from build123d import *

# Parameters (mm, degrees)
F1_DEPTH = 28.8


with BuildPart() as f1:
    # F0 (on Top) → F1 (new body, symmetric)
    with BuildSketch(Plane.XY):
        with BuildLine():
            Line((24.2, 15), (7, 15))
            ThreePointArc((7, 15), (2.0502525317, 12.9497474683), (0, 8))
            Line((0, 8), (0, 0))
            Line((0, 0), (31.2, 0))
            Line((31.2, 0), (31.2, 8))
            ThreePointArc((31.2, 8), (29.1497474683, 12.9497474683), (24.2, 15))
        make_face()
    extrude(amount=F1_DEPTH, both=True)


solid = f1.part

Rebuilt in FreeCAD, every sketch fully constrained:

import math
import FreeCAD as App
import Part
import Sketcher
from FreeCAD import Vector

doc = App.newDocument("Part")
body = doc.addObject("PartDesign::Body", "Body")

# Sketch on XY plane
sketch1 = body.newObject("Sketcher::SketchObject", "Sketch")
sketch1.AttachmentSupport = (doc.getObject("XY_Plane"), [""])
sketch1.MapMode = "FlatFace"
sketch1.addGeometry([
    Part.LineSegment(Vector(24, 15, 0), Vector(7, 15, 0)),  # 0
    Part.ArcOfCircle(Part.Circle(Vector(7, 8, 0), Vector(0, 0, 1), 7), math.radians(90), math.radians(180)),  # 1
    Part.LineSegment(Vector(0, 8, 0), Vector(0, 0, 0)),  # 2
    Part.LineSegment(Vector(0, 0, 0), Vector(31, 0, 0)),  # 3
    Part.LineSegment(Vector(31, 0, 0), Vector(31, 8, 0)),  # 4
    Part.ArcOfCircle(Part.Circle(Vector(24, 8, 0), Vector(0, 0, 1), 7), math.radians(0), math.radians(90)),  # 5
], False)
sketch1.addConstraint([
    Sketcher.Constraint("Tangent", 0, 2, 1, 1),
    Sketcher.Constraint("Tangent", 1, 2, 2, 1),
    Sketcher.Constraint("Coincident", 2, 2, 3, 1),
    Sketcher.Constraint("Coincident", 3, 2, 4, 1),
    Sketcher.Constraint("Tangent", 4, 2, 5, 1),
    Sketcher.Constraint("Tangent", 5, 2, 0, 1),
    Sketcher.Constraint("Horizontal", 0),
    Sketcher.Constraint("Vertical", 2),
    Sketcher.Constraint("Horizontal", 3),
    Sketcher.Constraint("Vertical", 4),
    Sketcher.Constraint("Coincident", 2, 2, -1, 1),
    Sketcher.Constraint("Equal", 1, 5),
    Sketcher.Constraint("Radius", 1, 7.0),
    Sketcher.Constraint("DistanceY", 2, 2, 2, 1, 8.0),
    Sketcher.Constraint("DistanceX", 0, 2, 0, 1, 17.2),
])
pad1 = body.newObject("PartDesign::Pad", "Pad")
pad1.Profile = sketch1
pad1.Length = 57.6
pad1.Midplane = True

doc.recompute()
